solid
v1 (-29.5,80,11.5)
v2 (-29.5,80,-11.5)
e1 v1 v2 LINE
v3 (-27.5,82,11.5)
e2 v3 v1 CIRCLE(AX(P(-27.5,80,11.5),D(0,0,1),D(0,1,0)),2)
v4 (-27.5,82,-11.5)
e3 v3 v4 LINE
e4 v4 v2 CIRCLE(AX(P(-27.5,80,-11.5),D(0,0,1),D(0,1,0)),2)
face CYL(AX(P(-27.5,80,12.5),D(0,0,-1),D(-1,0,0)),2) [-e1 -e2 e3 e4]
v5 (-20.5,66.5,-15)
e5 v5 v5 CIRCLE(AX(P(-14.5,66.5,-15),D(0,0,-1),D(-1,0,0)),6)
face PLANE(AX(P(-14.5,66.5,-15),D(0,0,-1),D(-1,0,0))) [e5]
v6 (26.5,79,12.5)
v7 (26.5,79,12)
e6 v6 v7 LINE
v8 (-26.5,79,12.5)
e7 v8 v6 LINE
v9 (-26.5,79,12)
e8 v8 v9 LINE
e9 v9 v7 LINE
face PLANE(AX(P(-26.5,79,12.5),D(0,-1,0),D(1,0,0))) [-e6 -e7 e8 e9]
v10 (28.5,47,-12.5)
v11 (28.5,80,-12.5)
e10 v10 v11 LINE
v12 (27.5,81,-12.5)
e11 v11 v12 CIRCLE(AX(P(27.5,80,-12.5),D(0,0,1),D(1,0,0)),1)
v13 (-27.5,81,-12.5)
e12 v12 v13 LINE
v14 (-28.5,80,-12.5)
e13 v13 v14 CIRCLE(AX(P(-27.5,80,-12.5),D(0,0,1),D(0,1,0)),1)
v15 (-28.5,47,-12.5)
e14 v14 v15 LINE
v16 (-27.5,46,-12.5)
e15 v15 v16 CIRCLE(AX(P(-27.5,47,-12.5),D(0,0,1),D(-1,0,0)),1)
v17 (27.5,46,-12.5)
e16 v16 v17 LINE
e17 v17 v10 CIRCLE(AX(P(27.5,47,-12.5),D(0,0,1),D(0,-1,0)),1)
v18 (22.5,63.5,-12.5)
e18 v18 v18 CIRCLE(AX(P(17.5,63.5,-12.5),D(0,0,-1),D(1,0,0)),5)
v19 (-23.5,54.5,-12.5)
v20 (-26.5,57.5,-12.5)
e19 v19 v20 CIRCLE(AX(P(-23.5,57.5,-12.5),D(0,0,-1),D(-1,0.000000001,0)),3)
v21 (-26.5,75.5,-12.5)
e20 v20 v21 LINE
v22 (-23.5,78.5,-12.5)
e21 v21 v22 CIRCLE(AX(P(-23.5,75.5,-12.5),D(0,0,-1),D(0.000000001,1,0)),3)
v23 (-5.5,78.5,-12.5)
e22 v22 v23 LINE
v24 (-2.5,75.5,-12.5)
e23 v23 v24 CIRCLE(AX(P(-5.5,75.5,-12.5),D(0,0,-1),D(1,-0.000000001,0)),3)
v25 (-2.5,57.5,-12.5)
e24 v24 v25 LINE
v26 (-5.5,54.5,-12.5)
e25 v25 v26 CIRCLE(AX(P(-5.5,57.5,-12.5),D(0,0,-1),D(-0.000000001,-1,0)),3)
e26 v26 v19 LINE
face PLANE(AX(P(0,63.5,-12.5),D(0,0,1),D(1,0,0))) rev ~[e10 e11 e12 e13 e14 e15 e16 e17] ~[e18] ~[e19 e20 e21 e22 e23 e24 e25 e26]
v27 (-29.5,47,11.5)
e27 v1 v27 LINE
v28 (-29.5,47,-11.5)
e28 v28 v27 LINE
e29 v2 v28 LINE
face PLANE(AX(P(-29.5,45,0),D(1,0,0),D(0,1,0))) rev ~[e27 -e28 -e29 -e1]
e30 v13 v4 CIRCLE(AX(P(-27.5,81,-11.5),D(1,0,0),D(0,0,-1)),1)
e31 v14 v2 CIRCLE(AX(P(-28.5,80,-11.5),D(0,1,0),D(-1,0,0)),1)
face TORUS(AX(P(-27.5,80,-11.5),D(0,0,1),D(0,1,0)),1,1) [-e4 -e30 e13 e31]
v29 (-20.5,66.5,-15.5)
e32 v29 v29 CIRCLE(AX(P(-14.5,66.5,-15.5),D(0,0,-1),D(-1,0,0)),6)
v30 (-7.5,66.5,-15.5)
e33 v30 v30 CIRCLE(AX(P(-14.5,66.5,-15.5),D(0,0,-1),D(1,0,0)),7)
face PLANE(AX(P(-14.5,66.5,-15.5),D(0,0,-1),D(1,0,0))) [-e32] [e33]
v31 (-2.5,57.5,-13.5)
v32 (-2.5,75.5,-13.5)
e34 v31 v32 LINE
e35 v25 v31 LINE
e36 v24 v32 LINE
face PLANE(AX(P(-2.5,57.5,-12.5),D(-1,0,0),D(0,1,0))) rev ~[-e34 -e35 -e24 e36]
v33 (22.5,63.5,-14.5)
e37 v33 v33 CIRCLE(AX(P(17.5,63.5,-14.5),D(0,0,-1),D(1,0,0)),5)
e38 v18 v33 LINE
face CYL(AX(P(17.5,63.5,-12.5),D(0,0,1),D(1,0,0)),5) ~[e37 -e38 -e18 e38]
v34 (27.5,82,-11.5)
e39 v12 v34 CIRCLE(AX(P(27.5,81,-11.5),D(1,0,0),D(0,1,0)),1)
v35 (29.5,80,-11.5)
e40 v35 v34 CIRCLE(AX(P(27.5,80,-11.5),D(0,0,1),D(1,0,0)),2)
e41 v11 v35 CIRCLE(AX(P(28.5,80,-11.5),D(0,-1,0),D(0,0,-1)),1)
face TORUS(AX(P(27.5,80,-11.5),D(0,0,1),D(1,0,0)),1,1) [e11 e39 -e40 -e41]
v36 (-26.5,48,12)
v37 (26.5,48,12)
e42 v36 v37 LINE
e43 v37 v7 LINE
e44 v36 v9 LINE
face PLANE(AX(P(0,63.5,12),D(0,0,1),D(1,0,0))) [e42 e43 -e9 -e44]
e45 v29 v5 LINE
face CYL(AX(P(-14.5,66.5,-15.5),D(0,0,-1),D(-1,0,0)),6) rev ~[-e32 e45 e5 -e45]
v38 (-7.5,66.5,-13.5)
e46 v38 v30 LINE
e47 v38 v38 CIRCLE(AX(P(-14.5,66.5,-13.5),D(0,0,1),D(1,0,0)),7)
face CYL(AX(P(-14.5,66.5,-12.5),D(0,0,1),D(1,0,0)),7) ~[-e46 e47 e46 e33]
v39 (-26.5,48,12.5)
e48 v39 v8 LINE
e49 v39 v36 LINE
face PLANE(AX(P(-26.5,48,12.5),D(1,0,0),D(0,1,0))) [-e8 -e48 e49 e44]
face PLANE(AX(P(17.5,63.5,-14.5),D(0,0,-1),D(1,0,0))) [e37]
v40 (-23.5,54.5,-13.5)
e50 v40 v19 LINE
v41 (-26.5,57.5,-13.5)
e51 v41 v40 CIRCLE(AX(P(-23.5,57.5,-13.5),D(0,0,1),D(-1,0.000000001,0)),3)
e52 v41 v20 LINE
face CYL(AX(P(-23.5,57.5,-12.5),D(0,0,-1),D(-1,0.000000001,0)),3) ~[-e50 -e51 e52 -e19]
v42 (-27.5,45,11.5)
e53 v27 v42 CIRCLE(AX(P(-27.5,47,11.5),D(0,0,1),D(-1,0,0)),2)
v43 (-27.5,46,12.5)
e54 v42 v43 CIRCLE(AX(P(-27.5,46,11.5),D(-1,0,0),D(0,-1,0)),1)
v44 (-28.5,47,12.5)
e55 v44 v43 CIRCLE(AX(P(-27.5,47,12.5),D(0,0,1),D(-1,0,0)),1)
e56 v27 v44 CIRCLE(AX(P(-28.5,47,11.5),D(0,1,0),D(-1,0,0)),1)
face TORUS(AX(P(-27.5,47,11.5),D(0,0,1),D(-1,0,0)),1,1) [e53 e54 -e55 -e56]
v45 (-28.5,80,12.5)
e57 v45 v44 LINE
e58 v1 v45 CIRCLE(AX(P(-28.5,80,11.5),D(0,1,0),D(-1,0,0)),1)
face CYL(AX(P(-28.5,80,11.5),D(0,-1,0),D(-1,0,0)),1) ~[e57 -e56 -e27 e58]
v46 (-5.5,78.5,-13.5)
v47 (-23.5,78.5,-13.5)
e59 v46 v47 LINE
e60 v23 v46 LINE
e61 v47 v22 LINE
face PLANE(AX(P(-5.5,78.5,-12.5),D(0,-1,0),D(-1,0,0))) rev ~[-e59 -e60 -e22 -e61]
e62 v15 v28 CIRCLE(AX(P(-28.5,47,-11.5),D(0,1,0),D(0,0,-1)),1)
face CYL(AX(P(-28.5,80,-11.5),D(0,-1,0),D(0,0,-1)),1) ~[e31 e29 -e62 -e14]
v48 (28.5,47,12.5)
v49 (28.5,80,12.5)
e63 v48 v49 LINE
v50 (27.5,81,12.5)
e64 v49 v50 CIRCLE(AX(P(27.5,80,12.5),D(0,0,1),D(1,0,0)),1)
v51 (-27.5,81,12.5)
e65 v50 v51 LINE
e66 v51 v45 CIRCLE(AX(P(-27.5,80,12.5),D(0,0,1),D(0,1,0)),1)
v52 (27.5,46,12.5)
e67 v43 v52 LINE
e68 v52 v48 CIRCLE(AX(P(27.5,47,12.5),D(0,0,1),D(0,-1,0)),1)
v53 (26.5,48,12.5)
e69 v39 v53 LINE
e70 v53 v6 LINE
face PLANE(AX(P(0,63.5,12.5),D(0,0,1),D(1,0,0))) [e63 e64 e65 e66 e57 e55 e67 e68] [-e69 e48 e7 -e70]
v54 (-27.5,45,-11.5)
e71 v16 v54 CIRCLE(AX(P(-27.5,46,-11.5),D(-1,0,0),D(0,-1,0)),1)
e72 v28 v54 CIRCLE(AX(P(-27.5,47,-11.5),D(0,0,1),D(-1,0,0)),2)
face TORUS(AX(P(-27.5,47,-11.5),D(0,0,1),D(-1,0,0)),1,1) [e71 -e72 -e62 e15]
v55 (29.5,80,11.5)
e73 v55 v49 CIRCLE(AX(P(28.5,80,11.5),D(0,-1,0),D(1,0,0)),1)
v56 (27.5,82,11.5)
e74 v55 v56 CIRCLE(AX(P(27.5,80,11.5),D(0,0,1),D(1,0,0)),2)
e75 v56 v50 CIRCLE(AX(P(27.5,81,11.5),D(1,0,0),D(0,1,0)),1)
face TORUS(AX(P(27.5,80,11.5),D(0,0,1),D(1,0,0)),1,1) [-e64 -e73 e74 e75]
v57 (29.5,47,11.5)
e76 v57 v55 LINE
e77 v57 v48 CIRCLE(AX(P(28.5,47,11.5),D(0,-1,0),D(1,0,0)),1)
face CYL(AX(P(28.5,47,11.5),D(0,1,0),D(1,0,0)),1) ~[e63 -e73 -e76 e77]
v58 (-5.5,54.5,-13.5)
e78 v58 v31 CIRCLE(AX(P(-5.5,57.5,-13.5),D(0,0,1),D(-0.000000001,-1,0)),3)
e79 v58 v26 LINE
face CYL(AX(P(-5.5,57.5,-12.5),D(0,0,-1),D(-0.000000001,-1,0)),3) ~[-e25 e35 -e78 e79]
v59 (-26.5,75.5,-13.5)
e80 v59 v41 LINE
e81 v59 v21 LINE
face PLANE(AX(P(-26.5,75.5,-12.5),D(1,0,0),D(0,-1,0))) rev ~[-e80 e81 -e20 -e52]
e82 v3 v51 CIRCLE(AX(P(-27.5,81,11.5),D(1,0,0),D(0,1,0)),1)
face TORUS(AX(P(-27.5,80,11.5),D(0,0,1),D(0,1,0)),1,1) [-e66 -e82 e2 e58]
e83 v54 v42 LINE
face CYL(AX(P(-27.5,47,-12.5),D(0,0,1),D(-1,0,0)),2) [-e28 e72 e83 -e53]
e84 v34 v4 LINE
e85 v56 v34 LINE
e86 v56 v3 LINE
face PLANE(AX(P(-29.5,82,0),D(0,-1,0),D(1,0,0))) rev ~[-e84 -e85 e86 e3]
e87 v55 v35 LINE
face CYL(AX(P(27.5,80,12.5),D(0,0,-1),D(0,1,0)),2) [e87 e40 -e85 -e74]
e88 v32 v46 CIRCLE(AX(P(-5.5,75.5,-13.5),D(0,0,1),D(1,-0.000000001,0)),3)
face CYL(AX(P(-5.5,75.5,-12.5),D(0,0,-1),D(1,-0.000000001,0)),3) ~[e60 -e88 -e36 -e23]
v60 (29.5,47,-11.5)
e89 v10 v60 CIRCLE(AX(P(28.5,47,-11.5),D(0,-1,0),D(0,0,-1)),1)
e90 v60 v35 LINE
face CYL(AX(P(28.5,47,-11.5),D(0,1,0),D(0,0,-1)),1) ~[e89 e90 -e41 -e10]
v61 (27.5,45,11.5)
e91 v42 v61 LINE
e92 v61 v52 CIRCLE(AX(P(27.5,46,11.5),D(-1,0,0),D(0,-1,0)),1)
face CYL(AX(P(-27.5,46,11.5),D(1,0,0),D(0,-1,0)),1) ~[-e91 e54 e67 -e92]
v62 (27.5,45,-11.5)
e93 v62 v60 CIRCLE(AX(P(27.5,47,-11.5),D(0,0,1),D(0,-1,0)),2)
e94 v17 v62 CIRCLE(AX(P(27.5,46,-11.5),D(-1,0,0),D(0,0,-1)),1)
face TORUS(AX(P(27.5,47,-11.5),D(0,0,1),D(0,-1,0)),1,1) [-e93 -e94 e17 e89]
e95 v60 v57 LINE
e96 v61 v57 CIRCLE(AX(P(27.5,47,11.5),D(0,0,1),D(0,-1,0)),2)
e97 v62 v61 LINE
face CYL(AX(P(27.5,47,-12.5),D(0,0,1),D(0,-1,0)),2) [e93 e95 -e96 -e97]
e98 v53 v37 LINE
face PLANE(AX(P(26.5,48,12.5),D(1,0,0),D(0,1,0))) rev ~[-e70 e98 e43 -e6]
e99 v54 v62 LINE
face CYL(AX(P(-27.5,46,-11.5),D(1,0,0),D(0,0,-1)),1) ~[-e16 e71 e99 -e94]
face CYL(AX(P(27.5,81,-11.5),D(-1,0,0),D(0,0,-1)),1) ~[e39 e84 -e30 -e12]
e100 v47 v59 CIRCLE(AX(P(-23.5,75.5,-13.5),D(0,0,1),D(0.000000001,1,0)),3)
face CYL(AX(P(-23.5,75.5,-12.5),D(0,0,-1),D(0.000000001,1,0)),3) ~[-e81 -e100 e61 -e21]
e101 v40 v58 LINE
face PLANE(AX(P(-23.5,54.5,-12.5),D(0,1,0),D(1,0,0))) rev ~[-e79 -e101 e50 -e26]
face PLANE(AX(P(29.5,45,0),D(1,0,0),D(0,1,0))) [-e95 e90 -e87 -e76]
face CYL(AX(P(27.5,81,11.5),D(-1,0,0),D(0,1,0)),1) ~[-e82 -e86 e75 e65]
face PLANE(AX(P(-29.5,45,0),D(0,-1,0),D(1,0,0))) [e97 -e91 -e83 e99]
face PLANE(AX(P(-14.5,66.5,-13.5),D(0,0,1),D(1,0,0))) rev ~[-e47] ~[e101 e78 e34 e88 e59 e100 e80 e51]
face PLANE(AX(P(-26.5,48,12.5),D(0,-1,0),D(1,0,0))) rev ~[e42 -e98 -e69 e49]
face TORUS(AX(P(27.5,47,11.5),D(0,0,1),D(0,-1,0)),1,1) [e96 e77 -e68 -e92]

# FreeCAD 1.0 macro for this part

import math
import FreeCAD as App
import Part
import Sketcher
from FreeCAD import Vector
Q = App.Units.Quantity


def edges_at(feature, points):
    """Names of the edges that pass closest to the given points."""
    edges = feature.Shape.Edges
    near = lambda p: min(range(len(edges)), key=lambda i: edges[i].distToShape(Part.Vertex(*p))[0])
    return sorted({f"Edge{near(p) + 1}" for p in points})

doc = App.newDocument("Part")
body = doc.addObject("PartDesign::Body", "Body")

sketch1 = doc.addObject("Sketcher::SketchObject", "Sketch")
body.addObject(sketch1)
sketch1.AttachmentSupport = (doc.XY_Plane, [""])
sketch1.MapMode = "FlatFace"
sketch1.addGeometry(Part.LineSegment(Vector(-30, 82, 0), Vector(-30, 45, 0)), False)
sketch1.addGeometry(Part.LineSegment(Vector(-30, 45, 0), Vector(30, 45, 0)), False)
sketch1.addGeometry(Part.LineSegment(Vector(30, 45, 0), Vector(30, 82, 0)), False)
sketch1.addGeometry(Part.LineSegment(Vector(30, 82, 0), Vector(-30, 82, 0)), False)
sketch1.addConstraint(Sketcher.Constraint("Coincident", 0, 2, 1, 1))
sketch1.addConstraint(Sketcher.Constraint("Coincident", 1, 2, 2, 1))
sketch1.addConstraint(Sketcher.Constraint("Coincident", 2, 2, 3, 1))
sketch1.addConstraint(Sketcher.Constraint("Coincident", 3, 2, 0, 1))
sketch1.addConstraint(Sketcher.Constraint("Vertical", 0))
sketch1.addConstraint(Sketcher.Constraint("Horizontal", 1))
sketch1.addConstraint(Sketcher.Constraint("Vertical", 2))
sketch1.addConstraint(Sketcher.Constraint("Horizontal", 3))
sketch1.addConstraint(Sketcher.Constraint("DistanceX", 1, 1, 1, 2, Q("59 mm")))
sketch1.addConstraint(Sketcher.Constraint("DistanceY", 0, 2, 0, 1, Q("37 mm")))
sketch1.addConstraint(Sketcher.Constraint("DistanceY", -1, 1, 0, 2, Q("45 mm")))
sketch1.addConstraint(Sketcher.Constraint("DistanceX", 0, 2, -1, 1, Q("29.5 mm")))
pad1 = doc.addObject("PartDesign::Pad", "Pad")
body.addObject(pad1)
pad1.Profile = sketch1
pad1.Length = 25
pad1.Midplane = True

sketch2 = doc.addObject("Sketcher::SketchObject", "Sketch001")
body.addObject(sketch2)
sketch2.AttachmentSupport = (doc.XY_Plane, [""])
sketch2.MapMode = "FlatFace"
sketch2.AttachmentOffset = App.Placement(Vector(0, 0, -12.5), App.Rotation())
sketch2.addGeometry(Part.Circle(Vector(-14, 66, 0), Vector(0, 0, 1), 7), False)
sketch2.addConstraint(Sketcher.Constraint("Diameter", 0, Q("14 mm")))
sketch2.addConstraint(Sketcher.Constraint("DistanceX", 0, 3, -1, 1, Q("14.5 mm")))
sketch2.addConstraint(Sketcher.Constraint("DistanceY", -1, 1, 0, 3, Q("66.5 mm")))
pad2 = doc.addObject("PartDesign::Pad", "Pad001")
body.addObject(pad2)
pad2.Profile = sketch2
pad2.Length = 3
pad2.Reversed = True
doc.recompute()

fillet = doc.addObject("PartDesign::Fillet", "Fillet")
body.addObject(fillet)
fillet.Base = (pad2, edges_at(pad2, [
    (-29.5, 82, 0),
    (29.5, 82, 0),
    (29.5, 45, 0),
    (-29.5, 45, 0),
]))
fillet.Radius = 2

sketch3 = doc.addObject("Sketcher::SketchObject", "Sketch002")
body.addObject(sketch3)
sketch3.AttachmentSupport = (doc.XY_Plane, [""])
sketch3.MapMode = "FlatFace"
sketch3.AttachmentOffset = App.Placement(Vector(0, 0, -12.5), App.Rotation())
sketch3.addGeometry(Part.LineSegment(Vector(-23.5, 78.5, 0), Vector(-5.5, 78.5, 0)), False)
sketch3.addGeometry(Part.ArcOfCircle(Part.Circle(Vector(-5.5, 75.5, 0), Vector(0, 0, 1), 3), math.radians(0), math.radians(90)), False)
sketch3.addGeometry(Part.LineSegment(Vector(-2.5, 75.5, 0), Vector(-2.5, 57.5, 0)), False)
sketch3.addGeometry(Part.ArcOfCircle(Part.Circle(Vector(-5.5, 57.5, 0), Vector(0, 0, 1), 3), math.radians(-90), math.radians(0)), False)
sketch3.addGeometry(Part.LineSegment(Vector(-5.5, 54.5, 0), Vector(-23.5, 54.5, 0)), False)
sketch3.addGeometry(Part.ArcOfCircle(Part.Circle(Vector(-23.5, 57.5, 0), Vector(0, 0, 1), 3), math.radians(180), math.radians(270)), False)
sketch3.addGeometry(Part.LineSegment(Vector(-26.5, 57.5, 0), Vector(-26.5, 75.5, 0)), False)
sketch3.addGeometry(Part.ArcOfCircle(Part.Circle(Vector(-23.5, 75.5, 0), Vector(0, 0, 1), 3), math.radians(90), math.radians(180)), False)
sketch3.addConstraint(Sketcher.Constraint("Tangent", 0, 2, 1, 2))
sketch3.addConstraint(Sketcher.Constraint("Tangent", 1, 1, 2, 1))
sketch3.addConstraint(Sketcher.Constraint("Tangent", 2, 2, 3, 2))
sketch3.addConstraint(Sketcher.Constraint("Tangent", 3, 1, 4, 1))
sketch3.addConstraint(Sketcher.Constraint("Tangent", 4, 2, 5, 2))
sketch3.addConstraint(Sketcher.Constraint("Tangent", 5, 1, 6, 1))
sketch3.addConstraint(Sketcher.Constraint("Tangent", 6, 2, 7, 2))
sketch3.addConstraint(Sketcher.Constraint("Tangent", 7, 1, 0, 1))
sketch3.addConstraint(Sketcher.Constraint("Horizontal", 0))
sketch3.addConstraint(Sketcher.Constraint("Vertical", 2))
sketch3.addConstraint(Sketcher.Constraint("Horizontal", 4))
sketch3.addConstraint(Sketcher.Constraint("Vertical", 6))
sketch3.addConstraint(Sketcher.Constraint("Equal", 1, 3))
sketch3.addConstraint(Sketcher.Constraint("Equal", 3, 5))
sketch3.addConstraint(Sketcher.Constraint("Equal", 5, 7))
sketch3.addConstraint(Sketcher.Constraint("Equal", 4, 2))
sketch3.addConstraint(Sketcher.Constraint("Radius", 1, Q("3 mm")))
sketch3.addConstraint(Sketcher.Constraint("DistanceX", 0, 1, 0, 2, Q("18 mm")))
sketch3.addConstraint(Sketcher.Constraint("DistanceX", 1, 3, -1, 1, Q("5.5 mm")))
sketch3.addConstraint(Sketcher.Constraint("DistanceY", -1, 1, 1, 3, Q("75.5 mm")))
pad3 = doc.addObject("PartDesign::Pad", "Pad002")
body.addObject(pad3)
pad3.Profile = sketch3
pad3.Length = 2
pad3.Midplane = True

sketch4 = doc.addObject("Sketcher::SketchObject", "Sketch003")
body.addObject(sketch4)
sketch4.AttachmentSupport = (doc.XY_Plane, [""])
sketch4.MapMode = "FlatFace"
sketch4.AttachmentOffset = App.Placement(Vector(0, 0, -15.5), App.Rotation())
sketch4.addGeometry(Part.Circle(Vector(-14, 66, 0), Vector(0, 0, 1), 6), False)
sketch4.addConstraint(Sketcher.Constraint("Diameter", 0, Q("12 mm")))
sketch4.addConstraint(Sketcher.Constraint("DistanceX", 0, 3, -1, 1, Q("14.5 mm")))
sketch4.addConstraint(Sketcher.Constraint("DistanceY", -1, 1, 0, 3, Q("66.5 mm")))
pocket1 = doc.addObject("PartDesign::Pocket", "Pocket")
body.addObject(pocket1)
pocket1.Profile = sketch4
pocket1.Length = 0.5
pocket1.Reversed = True

sketch5 = doc.addObject("Sketcher::SketchObject", "Sketch004")
body.addObject(sketch5)
sketch5.AttachmentSupport = (doc.XY_Plane, [""])
sketch5.MapMode = "FlatFace"
sketch5.AttachmentOffset = App.Placement(Vector(0, 0, -12.5), App.Rotation())
sketch5.addGeometry(Part.Circle(Vector(18, 64, 0), Vector(0, 0, 1), 5), False)
sketch5.addConstraint(Sketcher.Constraint("Diameter", 0, Q("10 mm")))
sketch5.addConstraint(Sketcher.Constraint("DistanceX", -1, 1, 0, 3, Q("17.5 mm")))
sketch5.addConstraint(Sketcher.Constraint("DistanceY", -1, 1, 0, 3, Q("63.5 mm")))
pad4 = doc.addObject("PartDesign::Pad", "Pad003")
body.addObject(pad4)
pad4.Profile = sketch5
pad4.Length = 2
pad4.Reversed = True
doc.recompute()

fillet2 = doc.addObject("PartDesign::Fillet", "Fillet001")
body.addObject(fillet2)
fillet2.Base = (pad4, edges_at(pad4, [
    (29.5, 63.5, -12.5),
    (29.5, 63.5, 12.5),
    (-29.5, 63.5, -12.5),
    (0, 82, -12.5),
    (0, 45, -12.5),
    (-28.914, 81.414, -12.5),
    (-28.914, 45.586, -12.5),
    (28.914, 81.414, -12.5),
    (28.914, 45.586, -12.5),
    (0, 45, 12.5),
    (-29.5, 63.5, 12.5),
    (0, 82, 12.5),
    (-28.914, 81.414, 12.5),
    (-28.914, 45.586, 12.5),
    (28.914, 81.414, 12.5),
    (28.914, 45.586, 12.5),
]))
fillet2.Radius = 1

sketch6 = doc.addObject("Sketcher::SketchObject", "Sketch005")
body.addObject(sketch6)
sketch6.AttachmentSupport = (doc.XY_Plane, [""])
sketch6.MapMode = "FlatFace"
sketch6.AttachmentOffset = App.Placement(Vector(0, 0, 12.5), App.Rotation())
sketch6.addGeometry(Part.LineSegment(Vector(-26, 79, 0), Vector(-26, 48, 0)), False)
sketch6.addGeometry(Part.LineSegment(Vector(-26, 48, 0), Vector(26, 48, 0)), False)
sketch6.addGeometry(Part.LineSegment(Vector(26, 48, 0), Vector(26, 79, 0)), False)
sketch6.addGeometry(Part.LineSegment(Vector(26, 79, 0), Vector(-26, 79, 0)), False)
sketch6.addConstraint(Sketcher.Constraint("Coincident", 0, 2, 1, 1))
sketch6.addConstraint(Sketcher.Constraint("Coincident", 1, 2, 2, 1))
sketch6.addConstraint(Sketcher.Constraint("Coincident", 2, 2, 3, 1))
sketch6.addConstraint(Sketcher.Constraint("Coincident", 3, 2, 0, 1))
sketch6.addConstraint(Sketcher.Constraint("Vertical", 0))
sketch6.addConstraint(Sketcher.Constraint("Horizontal", 1))
sketch6.addConstraint(Sketcher.Constraint("Vertical", 2))
sketch6.addConstraint(Sketcher.Constraint("Horizontal", 3))
sketch6.addConstraint(Sketcher.Constraint("DistanceX", 1, 1, 1, 2, Q("53 mm")))
sketch6.addConstraint(Sketcher.Constraint("DistanceY", 0, 2, 0, 1, Q("31 mm")))
sketch6.addConstraint(Sketcher.Constraint("DistanceY", -1, 1, 0, 2, Q("48 mm")))
sketch6.addConstraint(Sketcher.Constraint("DistanceX", 0, 2, -1, 1, Q("26.5 mm")))
pocket2 = doc.addObject("PartDesign::Pocket", "Pocket001")
body.addObject(pocket2)
pocket2.Profile = sketch6
pocket2.Length = 0.5

doc.recompute()
